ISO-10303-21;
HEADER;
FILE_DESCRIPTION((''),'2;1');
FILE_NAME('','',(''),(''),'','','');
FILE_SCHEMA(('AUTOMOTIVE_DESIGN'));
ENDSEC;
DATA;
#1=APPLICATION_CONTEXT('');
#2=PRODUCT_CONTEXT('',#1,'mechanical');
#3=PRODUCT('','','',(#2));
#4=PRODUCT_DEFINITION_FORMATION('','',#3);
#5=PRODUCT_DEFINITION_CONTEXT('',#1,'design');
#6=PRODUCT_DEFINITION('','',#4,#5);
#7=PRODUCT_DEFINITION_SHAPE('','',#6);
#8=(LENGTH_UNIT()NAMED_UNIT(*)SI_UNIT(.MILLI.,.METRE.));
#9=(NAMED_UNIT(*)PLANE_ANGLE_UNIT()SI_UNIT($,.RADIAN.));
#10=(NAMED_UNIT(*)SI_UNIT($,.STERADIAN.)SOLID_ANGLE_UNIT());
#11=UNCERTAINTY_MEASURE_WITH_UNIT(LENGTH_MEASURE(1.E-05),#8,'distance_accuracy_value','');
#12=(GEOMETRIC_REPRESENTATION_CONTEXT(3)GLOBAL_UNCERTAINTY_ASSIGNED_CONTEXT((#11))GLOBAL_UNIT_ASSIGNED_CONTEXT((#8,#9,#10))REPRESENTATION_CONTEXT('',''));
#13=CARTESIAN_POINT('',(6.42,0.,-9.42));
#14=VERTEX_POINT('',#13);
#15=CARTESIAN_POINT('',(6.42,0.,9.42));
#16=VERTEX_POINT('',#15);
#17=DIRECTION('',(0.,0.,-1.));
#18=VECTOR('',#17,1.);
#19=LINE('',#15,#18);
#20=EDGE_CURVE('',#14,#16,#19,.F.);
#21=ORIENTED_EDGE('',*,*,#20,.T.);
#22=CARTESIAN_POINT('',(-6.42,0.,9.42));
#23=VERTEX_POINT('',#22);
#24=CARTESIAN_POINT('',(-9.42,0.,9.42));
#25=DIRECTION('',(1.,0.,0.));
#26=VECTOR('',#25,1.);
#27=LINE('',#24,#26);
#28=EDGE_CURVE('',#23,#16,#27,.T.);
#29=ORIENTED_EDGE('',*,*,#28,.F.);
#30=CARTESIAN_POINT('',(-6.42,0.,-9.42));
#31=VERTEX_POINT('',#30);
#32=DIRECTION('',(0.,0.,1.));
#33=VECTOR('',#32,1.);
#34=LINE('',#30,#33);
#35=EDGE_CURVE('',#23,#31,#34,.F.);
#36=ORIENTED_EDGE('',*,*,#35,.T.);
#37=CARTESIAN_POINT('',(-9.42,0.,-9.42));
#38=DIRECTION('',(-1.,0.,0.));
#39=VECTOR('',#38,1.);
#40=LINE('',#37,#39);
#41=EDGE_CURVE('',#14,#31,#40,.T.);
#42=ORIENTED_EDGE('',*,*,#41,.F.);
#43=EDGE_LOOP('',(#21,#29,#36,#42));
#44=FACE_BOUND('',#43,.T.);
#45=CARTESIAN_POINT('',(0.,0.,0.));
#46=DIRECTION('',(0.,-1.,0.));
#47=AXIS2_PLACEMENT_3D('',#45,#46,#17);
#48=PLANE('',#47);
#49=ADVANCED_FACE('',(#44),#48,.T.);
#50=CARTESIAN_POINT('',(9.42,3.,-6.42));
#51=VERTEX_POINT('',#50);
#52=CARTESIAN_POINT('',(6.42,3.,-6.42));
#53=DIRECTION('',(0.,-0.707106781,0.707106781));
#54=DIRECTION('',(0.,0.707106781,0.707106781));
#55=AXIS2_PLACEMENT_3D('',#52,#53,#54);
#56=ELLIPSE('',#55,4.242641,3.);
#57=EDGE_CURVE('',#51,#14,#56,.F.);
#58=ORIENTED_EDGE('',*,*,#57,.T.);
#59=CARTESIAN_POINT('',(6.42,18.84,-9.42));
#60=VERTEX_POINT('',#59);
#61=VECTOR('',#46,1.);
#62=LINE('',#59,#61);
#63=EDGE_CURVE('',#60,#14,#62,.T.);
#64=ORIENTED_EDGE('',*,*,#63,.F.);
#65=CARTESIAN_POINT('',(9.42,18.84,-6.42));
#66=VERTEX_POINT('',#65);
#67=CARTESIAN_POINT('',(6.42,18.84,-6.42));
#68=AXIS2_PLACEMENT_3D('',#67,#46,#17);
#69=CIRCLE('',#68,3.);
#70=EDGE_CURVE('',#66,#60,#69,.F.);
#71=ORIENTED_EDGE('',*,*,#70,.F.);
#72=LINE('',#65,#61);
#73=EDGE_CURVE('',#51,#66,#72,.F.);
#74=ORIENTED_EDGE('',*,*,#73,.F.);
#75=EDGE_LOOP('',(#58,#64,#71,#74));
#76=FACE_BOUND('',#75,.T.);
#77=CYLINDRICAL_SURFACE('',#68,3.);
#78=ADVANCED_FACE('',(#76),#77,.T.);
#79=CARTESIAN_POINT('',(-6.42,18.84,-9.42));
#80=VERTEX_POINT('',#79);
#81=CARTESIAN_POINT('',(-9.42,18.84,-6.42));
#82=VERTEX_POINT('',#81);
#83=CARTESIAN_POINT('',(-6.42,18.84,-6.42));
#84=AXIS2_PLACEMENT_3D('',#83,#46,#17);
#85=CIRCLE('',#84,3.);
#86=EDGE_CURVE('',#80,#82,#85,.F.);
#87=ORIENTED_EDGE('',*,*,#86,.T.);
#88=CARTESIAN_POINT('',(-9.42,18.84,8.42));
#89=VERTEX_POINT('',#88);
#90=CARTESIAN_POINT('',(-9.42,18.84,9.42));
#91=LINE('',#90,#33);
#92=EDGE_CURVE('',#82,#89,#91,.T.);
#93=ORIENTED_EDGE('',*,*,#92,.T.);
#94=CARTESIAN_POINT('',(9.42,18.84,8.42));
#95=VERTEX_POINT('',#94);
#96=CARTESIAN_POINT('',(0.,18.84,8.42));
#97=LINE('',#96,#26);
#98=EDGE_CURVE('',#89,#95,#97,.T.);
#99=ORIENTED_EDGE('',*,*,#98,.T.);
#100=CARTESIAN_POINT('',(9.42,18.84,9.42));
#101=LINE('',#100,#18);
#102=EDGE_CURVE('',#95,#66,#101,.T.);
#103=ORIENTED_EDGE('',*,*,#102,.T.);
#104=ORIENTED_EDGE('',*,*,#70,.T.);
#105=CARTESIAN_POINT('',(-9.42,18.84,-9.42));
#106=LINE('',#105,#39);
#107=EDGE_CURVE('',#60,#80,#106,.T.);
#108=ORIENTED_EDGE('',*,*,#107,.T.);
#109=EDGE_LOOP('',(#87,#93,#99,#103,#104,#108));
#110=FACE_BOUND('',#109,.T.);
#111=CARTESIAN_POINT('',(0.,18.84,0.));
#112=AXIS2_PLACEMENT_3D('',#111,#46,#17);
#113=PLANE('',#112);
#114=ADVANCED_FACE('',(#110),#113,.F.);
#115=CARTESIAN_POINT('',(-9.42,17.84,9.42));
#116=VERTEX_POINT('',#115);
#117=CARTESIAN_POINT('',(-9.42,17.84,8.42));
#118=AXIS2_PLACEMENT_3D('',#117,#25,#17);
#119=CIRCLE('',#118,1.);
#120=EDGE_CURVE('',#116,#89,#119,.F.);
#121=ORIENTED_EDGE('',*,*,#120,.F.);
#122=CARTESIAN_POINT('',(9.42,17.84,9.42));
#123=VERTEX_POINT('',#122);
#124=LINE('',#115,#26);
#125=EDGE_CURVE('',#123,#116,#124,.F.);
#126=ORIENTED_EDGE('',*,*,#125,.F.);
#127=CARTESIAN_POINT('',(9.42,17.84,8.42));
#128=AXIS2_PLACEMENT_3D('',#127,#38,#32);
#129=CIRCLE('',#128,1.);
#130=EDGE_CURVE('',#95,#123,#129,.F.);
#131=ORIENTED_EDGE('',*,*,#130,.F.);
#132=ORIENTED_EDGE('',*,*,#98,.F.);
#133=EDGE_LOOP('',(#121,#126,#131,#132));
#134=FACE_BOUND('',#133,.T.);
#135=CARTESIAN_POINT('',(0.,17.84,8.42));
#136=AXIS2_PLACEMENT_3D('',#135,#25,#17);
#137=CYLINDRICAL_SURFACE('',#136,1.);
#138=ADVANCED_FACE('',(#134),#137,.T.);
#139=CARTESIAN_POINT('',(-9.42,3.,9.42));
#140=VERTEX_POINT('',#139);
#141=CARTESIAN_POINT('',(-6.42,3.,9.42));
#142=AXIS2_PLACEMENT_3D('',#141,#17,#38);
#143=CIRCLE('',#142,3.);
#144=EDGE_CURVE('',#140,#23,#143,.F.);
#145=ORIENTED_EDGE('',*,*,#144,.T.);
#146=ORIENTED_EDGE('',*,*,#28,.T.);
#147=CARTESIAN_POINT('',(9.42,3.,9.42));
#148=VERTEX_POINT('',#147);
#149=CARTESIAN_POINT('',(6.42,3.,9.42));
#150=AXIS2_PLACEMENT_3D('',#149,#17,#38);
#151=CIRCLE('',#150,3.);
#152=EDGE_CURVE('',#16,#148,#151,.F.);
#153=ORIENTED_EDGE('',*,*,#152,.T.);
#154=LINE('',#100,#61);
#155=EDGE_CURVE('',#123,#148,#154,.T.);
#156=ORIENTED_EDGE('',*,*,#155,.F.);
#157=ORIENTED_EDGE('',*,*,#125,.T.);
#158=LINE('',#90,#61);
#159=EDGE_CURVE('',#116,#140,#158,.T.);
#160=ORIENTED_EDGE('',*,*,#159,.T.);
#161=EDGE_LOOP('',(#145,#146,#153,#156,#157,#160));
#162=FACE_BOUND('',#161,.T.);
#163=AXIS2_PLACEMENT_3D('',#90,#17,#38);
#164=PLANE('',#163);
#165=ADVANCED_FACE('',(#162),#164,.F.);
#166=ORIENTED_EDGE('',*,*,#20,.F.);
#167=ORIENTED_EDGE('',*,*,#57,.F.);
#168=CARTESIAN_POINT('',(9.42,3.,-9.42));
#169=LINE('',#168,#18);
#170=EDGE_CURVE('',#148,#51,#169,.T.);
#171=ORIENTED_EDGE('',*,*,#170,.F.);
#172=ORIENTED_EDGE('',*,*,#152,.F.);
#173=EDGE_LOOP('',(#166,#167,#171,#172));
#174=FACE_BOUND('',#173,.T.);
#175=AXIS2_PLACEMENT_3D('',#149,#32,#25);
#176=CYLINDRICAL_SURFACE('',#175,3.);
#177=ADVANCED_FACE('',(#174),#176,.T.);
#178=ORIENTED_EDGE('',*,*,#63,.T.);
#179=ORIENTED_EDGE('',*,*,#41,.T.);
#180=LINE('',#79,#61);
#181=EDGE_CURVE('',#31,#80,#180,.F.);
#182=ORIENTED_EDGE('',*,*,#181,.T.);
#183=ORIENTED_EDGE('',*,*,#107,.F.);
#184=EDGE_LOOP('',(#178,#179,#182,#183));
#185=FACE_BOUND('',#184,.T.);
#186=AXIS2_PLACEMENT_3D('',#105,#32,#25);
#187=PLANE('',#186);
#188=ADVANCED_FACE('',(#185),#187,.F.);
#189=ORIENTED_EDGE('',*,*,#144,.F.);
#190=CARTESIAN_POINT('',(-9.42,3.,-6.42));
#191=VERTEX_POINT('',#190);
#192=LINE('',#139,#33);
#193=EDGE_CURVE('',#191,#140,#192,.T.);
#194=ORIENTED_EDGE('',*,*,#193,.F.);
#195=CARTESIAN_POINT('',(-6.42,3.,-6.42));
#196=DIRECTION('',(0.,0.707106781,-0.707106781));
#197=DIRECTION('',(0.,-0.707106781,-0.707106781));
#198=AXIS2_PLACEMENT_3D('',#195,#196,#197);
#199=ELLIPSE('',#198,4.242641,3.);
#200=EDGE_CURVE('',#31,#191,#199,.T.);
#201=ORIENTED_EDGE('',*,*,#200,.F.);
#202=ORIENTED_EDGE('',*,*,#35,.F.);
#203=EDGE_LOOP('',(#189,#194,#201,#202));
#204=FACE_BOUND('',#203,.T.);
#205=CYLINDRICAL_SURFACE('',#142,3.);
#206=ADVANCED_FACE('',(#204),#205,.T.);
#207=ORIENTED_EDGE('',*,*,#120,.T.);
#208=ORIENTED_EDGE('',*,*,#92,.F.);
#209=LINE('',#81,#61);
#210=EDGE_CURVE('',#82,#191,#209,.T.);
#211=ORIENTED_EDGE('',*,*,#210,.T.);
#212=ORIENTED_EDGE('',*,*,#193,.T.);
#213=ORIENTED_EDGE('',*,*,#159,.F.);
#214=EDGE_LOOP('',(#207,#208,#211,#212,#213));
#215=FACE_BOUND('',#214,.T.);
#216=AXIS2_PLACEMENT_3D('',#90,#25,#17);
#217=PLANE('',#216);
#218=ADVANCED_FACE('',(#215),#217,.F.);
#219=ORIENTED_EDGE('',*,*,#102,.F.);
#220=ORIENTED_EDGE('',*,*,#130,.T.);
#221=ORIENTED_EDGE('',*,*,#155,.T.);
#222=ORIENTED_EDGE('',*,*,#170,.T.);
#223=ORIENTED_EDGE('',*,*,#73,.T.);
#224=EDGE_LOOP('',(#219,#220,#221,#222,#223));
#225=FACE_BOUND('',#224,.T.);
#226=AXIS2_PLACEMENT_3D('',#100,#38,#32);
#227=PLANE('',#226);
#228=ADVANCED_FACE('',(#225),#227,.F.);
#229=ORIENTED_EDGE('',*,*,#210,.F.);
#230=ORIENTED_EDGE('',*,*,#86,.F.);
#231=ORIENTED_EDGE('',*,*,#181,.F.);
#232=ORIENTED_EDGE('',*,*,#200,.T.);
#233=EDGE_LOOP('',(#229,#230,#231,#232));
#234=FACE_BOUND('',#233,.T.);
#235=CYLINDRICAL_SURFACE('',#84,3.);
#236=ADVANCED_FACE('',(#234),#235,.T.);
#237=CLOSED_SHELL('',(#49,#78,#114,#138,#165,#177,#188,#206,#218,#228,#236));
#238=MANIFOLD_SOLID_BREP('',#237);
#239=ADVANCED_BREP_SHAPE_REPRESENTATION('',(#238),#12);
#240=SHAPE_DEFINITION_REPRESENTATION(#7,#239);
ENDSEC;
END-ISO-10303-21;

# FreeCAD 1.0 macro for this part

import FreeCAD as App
import Part
import Sketcher

V = App.Vector


def edges_at(feature, points):
    """Names of the edges that pass closest to the given points."""
    edges = feature.Shape.Edges
    near = lambda p: min(range(len(edges)), key=lambda i: edges[i].distToShape(Part.Vertex(*p))[0])
    return sorted({f"Edge{near(p) + 1}" for p in points})

doc = App.newDocument("Part")
body = doc.addObject("PartDesign::Body", "Body")

# Sketch on XZ plane
sketch1 = doc.addObject("Sketcher::SketchObject", "Sketch")
body.addObject(sketch1)
sketch1.AttachmentSupport = (doc.XZ_Plane, [""])
sketch1.MapMode = "FlatFace"
sketch1.addGeometry([
    Part.LineSegment(V(-9, -9, 0), V(-9, 9, 0)),
    Part.LineSegment(V(-9, 9, 0), V(9, 9, 0)),
    Part.LineSegment(V(9, 9, 0), V(9, -9, 0)),
    Part.LineSegment(V(9, -9, 0), V(-9, -9, 0)),
], False)
sketch1.addConstraint([
    Sketcher.Constraint("Coincident", 0, 2, 1, 1),
    Sketcher.Constraint("Coincident", 1, 2, 2, 1),
    Sketcher.Constraint("Coincident", 2, 2, 3, 1),
    Sketcher.Constraint("Coincident", 3, 2, 0, 1),
    Sketcher.Constraint("Vertical", 0),
    Sketcher.Constraint("Horizontal", 1),
    Sketcher.Constraint("Vertical", 2),
    Sketcher.Constraint("Horizontal", 3),
    Sketcher.Constraint("Symmetric", 0, 2, 2, 2, -1, 1),
    Sketcher.Constraint("Equal", 3, 0),
    Sketcher.Constraint("DistanceX", 1, 1, 1, 2, 18.84),
])
pad1 = doc.addObject("PartDesign::Pad", "Pad")
body.addObject(pad1)
pad1.Profile = sketch1
pad1.Length = 18.84
pad1.Reversed = True
doc.recompute()

fillet = doc.addObject("PartDesign::Fillet", "Fillet")
body.addObject(fillet)
fillet.Base = (pad1, edges_at(pad1, [(0, 18.84, 9.42)]))
fillet.Radius = 1
doc.recompute()

fillet2 = doc.addObject("PartDesign::Fillet", "Fillet001")
body.addObject(fillet2)
fillet2.Base = (fillet, edges_at(fillet, [
    (-9.42, 0, 0),
    (9.42, 0, 0),
    (-9.42, 9.42, -9.42),
    (9.42, 9.42, -9.42),
]))
fillet2.Radius = 3

doc.recompute()
